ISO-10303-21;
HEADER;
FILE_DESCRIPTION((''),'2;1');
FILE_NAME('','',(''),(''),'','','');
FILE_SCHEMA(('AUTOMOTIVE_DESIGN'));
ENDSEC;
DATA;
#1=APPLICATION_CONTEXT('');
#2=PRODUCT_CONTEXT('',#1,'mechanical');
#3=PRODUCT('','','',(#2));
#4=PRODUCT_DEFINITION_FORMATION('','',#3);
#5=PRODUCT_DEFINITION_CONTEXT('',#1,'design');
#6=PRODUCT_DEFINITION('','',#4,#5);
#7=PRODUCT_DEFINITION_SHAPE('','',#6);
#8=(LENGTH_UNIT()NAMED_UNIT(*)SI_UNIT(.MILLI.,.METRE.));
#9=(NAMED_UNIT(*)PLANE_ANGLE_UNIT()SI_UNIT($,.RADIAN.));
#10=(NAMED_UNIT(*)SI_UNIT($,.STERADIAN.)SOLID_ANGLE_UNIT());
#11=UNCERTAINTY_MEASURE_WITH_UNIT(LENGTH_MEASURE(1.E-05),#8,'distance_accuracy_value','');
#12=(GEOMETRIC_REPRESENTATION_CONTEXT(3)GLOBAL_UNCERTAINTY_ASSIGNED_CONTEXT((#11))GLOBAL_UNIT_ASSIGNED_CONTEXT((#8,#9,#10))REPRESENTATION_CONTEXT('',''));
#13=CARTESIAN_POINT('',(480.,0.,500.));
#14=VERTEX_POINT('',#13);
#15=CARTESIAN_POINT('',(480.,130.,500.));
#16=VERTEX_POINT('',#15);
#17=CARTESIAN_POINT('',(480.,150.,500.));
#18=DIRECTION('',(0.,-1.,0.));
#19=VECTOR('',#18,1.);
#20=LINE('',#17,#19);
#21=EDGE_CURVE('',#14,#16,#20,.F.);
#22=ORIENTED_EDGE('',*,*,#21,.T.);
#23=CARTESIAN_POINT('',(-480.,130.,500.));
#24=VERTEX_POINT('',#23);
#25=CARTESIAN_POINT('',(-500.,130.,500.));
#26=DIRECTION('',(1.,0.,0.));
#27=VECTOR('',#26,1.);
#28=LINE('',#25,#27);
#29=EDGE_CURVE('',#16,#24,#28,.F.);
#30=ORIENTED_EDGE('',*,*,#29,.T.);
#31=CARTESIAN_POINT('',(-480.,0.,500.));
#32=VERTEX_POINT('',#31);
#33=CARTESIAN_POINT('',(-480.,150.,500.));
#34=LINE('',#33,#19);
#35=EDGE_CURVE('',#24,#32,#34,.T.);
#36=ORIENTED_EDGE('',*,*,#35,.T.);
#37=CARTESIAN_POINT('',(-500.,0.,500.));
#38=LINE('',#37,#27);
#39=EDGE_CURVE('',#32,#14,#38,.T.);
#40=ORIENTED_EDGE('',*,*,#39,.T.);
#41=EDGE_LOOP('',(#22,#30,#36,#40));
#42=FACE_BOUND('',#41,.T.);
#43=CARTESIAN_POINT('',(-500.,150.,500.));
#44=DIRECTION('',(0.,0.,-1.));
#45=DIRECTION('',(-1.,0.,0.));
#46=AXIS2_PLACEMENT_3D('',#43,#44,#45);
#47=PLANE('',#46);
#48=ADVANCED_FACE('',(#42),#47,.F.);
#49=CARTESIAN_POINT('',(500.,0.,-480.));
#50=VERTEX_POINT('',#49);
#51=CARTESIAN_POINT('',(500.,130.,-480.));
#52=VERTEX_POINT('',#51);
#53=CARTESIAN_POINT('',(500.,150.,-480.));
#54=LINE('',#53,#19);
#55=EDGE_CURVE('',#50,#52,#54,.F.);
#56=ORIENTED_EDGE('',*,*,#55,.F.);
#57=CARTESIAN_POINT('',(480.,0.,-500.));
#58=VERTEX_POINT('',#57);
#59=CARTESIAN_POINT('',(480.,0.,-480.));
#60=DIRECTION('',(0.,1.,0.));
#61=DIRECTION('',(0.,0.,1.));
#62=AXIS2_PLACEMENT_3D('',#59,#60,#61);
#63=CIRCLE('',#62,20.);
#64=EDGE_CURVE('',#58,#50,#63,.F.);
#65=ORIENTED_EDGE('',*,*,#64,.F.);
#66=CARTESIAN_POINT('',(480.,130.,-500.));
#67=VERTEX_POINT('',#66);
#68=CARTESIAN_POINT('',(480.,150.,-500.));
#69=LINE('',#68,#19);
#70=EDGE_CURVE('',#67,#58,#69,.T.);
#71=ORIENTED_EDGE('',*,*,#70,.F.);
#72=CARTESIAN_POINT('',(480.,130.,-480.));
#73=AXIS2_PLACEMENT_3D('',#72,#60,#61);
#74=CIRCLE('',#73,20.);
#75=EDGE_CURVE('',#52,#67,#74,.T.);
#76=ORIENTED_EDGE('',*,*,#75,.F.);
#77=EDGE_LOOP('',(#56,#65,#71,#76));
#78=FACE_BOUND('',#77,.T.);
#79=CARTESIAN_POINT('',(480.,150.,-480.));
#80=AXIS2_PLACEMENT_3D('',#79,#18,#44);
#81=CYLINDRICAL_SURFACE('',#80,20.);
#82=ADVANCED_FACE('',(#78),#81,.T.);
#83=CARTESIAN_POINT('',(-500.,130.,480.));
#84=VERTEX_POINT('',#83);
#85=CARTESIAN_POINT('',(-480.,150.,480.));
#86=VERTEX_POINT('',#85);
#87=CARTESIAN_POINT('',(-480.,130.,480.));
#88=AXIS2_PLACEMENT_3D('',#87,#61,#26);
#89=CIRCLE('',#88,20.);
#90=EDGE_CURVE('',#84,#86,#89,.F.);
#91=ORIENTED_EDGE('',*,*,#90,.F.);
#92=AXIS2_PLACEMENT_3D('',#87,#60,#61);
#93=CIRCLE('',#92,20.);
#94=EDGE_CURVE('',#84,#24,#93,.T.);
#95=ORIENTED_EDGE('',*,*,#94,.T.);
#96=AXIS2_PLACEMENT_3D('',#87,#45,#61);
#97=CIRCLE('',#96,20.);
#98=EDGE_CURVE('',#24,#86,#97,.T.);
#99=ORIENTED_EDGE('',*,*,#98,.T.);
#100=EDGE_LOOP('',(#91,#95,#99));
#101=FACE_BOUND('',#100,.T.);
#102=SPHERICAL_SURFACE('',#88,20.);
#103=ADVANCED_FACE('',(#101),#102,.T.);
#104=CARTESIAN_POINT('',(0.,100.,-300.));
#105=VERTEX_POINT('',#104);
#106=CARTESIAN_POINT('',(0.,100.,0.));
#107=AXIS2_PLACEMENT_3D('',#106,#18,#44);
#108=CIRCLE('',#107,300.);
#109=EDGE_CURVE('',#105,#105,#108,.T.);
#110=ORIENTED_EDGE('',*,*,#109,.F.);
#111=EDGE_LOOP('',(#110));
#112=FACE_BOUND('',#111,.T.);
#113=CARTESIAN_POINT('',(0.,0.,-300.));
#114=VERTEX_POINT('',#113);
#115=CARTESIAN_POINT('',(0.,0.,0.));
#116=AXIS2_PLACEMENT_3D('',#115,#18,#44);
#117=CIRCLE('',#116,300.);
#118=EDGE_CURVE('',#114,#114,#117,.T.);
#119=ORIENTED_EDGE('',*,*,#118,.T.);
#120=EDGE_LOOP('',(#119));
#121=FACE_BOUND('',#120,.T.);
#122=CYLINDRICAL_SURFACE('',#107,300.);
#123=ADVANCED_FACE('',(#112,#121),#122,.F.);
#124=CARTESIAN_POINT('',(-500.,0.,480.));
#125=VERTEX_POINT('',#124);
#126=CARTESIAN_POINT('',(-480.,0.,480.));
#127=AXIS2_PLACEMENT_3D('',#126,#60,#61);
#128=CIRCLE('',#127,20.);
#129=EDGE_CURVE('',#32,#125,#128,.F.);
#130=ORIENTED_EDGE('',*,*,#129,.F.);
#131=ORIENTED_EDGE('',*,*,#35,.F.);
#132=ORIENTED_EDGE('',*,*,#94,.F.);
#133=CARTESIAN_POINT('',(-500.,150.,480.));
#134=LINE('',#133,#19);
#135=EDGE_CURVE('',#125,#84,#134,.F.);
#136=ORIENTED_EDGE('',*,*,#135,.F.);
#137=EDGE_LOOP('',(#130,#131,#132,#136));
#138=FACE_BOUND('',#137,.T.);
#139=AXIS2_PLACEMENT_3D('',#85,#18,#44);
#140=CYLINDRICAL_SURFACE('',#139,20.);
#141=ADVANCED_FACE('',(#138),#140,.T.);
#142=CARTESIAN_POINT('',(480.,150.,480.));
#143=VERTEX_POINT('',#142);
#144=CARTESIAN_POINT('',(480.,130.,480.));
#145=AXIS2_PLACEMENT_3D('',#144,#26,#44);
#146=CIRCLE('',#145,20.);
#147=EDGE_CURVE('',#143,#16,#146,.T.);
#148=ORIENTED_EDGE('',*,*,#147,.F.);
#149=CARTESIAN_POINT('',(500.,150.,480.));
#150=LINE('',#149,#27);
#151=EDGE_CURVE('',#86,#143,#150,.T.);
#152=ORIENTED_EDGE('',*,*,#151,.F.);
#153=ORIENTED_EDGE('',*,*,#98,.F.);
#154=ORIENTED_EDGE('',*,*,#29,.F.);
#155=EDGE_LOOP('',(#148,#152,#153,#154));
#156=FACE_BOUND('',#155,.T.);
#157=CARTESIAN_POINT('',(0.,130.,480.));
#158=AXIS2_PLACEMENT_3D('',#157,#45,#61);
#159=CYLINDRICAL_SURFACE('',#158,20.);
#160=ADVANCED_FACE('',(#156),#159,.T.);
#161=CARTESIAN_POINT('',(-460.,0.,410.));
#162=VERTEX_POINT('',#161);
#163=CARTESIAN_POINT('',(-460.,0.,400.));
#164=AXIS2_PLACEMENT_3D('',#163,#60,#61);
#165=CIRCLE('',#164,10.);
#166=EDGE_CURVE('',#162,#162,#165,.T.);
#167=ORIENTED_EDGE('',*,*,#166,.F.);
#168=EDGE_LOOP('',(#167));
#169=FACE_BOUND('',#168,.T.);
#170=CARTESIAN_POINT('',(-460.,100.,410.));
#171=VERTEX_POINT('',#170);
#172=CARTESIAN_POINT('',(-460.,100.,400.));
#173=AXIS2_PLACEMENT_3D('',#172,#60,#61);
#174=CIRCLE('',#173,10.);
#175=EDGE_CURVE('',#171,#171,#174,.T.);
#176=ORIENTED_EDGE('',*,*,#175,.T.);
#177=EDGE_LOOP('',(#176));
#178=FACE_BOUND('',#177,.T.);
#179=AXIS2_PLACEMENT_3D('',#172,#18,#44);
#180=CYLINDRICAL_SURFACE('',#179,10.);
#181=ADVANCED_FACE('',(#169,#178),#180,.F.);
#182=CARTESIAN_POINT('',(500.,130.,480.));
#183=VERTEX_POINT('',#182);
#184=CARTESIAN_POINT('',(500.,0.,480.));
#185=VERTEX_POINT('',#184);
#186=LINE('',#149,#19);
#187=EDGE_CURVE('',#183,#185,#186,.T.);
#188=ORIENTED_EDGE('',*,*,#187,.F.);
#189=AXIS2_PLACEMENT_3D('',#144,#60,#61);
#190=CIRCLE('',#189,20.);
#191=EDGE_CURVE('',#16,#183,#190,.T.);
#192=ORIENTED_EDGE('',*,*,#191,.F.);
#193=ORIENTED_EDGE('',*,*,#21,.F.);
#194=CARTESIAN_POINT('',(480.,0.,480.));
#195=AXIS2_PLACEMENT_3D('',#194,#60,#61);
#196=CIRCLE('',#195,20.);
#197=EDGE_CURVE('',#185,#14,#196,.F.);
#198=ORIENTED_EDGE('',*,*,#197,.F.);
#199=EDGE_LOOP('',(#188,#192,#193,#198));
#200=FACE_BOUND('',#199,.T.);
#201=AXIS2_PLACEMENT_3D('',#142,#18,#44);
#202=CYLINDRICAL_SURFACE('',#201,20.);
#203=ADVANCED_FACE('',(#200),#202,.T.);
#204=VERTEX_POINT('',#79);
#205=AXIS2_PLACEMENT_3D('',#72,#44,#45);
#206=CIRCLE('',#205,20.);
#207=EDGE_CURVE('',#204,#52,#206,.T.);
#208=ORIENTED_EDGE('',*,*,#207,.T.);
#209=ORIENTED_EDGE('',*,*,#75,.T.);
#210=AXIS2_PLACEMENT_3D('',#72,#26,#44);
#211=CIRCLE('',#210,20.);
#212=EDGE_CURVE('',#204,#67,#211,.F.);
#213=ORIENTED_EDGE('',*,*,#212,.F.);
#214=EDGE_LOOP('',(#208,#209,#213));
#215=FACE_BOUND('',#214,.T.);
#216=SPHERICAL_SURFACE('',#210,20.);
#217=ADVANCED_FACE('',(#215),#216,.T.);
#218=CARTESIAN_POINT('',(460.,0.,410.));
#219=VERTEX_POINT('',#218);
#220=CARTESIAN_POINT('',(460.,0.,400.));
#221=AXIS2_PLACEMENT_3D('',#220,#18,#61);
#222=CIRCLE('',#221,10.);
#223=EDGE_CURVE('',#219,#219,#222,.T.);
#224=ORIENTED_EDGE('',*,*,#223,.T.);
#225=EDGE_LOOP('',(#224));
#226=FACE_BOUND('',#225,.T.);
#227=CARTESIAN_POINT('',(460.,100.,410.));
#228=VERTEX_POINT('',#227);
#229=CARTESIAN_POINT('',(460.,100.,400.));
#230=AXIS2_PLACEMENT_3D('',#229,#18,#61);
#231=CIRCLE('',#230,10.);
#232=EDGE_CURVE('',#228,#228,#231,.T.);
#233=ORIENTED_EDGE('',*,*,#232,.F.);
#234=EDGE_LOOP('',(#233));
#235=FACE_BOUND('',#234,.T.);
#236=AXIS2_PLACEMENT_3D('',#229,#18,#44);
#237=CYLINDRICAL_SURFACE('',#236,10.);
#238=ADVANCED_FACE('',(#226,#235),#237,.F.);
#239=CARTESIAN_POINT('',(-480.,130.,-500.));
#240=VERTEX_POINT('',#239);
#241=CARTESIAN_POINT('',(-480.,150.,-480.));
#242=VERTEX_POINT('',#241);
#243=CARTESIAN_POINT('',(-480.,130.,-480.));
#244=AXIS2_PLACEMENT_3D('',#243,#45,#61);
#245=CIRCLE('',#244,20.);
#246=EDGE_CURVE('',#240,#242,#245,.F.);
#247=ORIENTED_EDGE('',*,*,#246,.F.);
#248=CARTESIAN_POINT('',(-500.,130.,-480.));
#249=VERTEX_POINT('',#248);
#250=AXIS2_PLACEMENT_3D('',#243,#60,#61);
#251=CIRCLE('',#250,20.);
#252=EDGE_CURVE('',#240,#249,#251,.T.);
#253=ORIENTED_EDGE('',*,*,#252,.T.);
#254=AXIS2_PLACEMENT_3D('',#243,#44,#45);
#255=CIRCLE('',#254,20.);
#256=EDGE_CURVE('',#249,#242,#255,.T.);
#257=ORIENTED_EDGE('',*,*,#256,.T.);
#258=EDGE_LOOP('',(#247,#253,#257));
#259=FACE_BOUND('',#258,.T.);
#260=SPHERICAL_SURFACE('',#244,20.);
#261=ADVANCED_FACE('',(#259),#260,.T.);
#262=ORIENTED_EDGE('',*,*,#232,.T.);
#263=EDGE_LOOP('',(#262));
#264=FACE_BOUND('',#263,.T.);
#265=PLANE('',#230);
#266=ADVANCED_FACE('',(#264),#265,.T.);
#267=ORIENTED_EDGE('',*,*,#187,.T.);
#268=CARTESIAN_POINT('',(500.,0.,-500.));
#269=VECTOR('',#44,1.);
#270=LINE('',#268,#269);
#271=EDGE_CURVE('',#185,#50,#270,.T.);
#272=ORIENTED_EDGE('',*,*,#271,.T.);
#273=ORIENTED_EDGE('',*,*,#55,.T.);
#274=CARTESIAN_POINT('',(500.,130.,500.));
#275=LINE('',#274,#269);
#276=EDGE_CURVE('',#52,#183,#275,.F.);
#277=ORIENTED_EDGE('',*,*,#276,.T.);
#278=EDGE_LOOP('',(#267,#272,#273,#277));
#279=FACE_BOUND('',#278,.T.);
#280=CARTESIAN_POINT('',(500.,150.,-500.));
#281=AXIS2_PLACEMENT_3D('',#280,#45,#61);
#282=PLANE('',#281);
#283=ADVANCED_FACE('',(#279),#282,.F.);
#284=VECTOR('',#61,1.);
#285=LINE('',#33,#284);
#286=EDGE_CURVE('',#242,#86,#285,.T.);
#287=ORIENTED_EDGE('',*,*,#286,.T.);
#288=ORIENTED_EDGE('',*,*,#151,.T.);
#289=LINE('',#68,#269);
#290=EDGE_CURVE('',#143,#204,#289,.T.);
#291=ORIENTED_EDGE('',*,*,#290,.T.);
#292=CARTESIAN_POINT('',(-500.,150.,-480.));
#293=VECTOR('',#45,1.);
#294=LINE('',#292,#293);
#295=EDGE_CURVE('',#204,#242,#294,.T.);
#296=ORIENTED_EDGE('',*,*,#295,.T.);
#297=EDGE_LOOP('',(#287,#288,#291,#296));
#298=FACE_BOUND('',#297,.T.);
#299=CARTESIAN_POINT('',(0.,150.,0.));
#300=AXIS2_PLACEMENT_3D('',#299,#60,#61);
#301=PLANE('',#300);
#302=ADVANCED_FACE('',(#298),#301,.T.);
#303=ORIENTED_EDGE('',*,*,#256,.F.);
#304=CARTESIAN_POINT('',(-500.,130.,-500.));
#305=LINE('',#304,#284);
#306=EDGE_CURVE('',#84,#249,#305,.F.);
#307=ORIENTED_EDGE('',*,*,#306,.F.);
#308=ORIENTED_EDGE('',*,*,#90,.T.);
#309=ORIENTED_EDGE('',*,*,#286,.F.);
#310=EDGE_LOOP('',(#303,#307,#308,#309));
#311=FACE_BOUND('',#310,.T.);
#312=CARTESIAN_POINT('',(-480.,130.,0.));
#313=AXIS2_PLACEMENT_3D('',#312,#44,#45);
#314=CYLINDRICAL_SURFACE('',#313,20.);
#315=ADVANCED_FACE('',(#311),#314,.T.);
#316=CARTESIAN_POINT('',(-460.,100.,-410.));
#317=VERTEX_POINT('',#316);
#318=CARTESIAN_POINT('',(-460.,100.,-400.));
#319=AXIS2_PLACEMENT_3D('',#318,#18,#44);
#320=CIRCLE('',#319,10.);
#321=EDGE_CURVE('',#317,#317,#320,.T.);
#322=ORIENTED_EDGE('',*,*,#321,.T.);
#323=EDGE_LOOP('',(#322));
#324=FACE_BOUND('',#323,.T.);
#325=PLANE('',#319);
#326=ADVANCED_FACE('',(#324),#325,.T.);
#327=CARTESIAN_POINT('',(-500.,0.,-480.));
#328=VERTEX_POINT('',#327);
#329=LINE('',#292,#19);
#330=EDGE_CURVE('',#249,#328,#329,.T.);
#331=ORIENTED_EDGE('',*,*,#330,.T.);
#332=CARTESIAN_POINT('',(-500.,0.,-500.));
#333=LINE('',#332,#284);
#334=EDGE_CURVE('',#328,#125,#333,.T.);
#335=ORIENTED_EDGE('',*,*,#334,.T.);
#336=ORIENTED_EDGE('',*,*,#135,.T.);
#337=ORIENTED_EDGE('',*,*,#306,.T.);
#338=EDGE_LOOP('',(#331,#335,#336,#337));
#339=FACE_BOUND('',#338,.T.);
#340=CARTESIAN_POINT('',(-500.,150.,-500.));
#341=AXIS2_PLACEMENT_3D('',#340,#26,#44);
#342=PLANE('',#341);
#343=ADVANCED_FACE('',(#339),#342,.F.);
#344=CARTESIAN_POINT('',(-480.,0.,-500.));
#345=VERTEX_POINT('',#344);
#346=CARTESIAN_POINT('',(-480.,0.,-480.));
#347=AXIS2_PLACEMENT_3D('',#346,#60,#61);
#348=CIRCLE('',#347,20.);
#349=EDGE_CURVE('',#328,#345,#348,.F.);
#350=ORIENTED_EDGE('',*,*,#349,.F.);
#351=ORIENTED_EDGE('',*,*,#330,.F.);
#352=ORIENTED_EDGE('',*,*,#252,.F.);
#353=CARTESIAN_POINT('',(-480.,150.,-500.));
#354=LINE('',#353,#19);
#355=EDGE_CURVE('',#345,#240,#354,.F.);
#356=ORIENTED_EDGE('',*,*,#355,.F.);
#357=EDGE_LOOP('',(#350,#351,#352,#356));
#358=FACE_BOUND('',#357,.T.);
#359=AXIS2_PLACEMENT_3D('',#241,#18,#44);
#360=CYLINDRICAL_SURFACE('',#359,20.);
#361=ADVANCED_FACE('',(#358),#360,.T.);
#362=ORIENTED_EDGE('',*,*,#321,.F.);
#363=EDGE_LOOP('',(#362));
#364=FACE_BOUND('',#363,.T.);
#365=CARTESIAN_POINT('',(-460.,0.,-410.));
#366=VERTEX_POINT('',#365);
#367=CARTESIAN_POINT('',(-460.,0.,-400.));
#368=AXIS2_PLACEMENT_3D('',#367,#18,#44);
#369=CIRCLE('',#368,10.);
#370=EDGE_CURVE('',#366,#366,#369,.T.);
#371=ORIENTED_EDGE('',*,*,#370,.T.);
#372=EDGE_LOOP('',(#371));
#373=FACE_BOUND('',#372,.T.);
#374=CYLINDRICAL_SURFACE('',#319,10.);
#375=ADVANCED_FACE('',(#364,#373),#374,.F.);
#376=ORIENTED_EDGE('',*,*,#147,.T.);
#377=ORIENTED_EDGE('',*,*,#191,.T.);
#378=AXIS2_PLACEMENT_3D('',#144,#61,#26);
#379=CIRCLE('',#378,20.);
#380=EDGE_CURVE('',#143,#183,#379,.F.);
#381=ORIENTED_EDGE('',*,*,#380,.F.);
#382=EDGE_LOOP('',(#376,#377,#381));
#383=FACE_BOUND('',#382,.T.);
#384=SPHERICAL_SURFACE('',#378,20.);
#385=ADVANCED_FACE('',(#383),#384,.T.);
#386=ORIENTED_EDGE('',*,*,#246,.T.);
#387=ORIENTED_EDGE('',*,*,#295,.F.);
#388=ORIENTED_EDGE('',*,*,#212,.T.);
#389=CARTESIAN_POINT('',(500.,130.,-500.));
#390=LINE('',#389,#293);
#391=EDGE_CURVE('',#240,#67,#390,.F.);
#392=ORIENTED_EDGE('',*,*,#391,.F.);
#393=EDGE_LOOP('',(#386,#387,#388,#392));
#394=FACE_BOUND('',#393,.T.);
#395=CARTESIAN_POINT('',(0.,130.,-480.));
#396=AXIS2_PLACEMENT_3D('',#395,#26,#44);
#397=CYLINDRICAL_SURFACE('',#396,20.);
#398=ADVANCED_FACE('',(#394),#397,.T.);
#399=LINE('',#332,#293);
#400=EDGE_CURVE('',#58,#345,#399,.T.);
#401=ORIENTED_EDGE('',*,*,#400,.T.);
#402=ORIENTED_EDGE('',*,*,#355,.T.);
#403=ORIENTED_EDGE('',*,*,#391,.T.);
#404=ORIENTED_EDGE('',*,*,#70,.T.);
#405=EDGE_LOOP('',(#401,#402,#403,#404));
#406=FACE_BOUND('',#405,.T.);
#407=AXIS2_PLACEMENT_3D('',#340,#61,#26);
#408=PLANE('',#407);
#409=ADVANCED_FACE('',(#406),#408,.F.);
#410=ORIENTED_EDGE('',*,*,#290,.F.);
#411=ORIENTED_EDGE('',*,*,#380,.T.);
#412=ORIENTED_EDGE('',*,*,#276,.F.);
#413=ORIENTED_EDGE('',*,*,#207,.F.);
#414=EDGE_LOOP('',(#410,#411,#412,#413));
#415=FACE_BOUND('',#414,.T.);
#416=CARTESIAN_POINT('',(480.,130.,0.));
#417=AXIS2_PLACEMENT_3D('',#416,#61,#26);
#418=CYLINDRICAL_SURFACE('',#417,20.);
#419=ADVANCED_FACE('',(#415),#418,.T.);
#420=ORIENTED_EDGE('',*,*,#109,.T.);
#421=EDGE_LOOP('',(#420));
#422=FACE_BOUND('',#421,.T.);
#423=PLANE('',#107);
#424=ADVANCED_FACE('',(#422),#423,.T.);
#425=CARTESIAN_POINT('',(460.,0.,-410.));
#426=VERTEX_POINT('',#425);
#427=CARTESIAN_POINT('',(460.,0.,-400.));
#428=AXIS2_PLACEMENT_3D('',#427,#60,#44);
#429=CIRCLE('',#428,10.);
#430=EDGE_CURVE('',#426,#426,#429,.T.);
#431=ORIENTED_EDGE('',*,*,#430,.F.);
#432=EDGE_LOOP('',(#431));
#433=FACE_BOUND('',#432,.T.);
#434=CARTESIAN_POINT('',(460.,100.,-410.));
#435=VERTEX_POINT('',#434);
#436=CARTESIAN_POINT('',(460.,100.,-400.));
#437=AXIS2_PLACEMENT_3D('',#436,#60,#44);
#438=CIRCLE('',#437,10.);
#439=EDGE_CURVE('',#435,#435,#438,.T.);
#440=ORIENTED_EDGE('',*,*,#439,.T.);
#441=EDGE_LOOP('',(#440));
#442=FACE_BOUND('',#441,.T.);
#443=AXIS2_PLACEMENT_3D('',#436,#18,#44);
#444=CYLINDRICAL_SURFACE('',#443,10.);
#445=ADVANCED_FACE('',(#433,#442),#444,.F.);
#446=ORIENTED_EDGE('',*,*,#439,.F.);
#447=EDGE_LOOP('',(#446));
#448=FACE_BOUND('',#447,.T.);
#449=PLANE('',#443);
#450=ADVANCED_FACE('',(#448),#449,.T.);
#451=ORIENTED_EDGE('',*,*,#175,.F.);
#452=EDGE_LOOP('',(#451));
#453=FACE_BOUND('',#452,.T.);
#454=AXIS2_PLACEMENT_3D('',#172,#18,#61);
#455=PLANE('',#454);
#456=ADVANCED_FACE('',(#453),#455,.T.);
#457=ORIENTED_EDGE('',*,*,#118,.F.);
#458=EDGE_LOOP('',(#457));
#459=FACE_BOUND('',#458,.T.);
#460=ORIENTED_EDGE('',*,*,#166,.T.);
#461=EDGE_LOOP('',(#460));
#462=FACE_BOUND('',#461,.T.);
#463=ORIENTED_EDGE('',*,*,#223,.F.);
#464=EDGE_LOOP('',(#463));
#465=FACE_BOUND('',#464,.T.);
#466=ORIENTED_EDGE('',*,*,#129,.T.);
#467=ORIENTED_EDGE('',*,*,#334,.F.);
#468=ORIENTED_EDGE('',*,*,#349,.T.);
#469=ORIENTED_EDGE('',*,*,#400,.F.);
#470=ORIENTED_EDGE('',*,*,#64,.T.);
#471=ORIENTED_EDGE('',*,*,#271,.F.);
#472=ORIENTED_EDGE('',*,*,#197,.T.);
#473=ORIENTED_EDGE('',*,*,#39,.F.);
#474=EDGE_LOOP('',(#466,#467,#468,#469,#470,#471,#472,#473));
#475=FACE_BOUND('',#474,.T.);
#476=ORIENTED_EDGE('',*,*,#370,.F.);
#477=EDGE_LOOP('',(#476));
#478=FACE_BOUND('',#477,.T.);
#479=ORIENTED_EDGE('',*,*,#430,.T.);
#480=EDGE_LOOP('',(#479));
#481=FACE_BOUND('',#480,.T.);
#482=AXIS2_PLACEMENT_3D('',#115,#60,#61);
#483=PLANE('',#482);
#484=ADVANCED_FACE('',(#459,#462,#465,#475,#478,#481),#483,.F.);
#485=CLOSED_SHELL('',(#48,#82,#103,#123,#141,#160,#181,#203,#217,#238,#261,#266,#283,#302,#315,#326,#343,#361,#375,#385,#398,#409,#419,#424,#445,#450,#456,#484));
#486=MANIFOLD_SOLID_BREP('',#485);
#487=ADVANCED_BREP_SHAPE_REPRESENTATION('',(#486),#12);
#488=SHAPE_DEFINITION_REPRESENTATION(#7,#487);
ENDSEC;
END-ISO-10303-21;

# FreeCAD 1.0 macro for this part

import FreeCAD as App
import Part
import Sketcher
Q = App.Units.Quantity


def edges_at(feature, points):
    """Names of the edges that pass closest to the given points."""
    edges = feature.Shape.Edges
    near = lambda p: min(range(len(edges)), key=lambda i: edges[i].distToShape(Part.Vertex(*p))[0])
    return sorted({f"Edge{near(p) + 1}" for p in points})


def add_polygon(sketch, points):
    """Adds a closed chain of lines whose ends are joined by coincident constraints."""
    first, n = sketch.GeometryCount, len(points)
    for a, b in zip(points, points[1:] + points[:1]):
        sketch.addGeometry(Part.LineSegment(App.Vector(*a, 0), App.Vector(*b, 0)), False)
    for i in range(n):
        sketch.addConstraint(Sketcher.Constraint("Coincident", first + i, 2, first + (i + 1) % n, 1))

doc = App.newDocument("Part")
body = doc.addObject("PartDesign::Body", "Body")

# Sketch on XZ plane
sketch1 = body.newObject("Sketcher::SketchObject", "Sketch")
sketch1.AttachmentSupport = (doc.getObject("XZ_Plane"), [""])
sketch1.MapMode = "FlatFace"
add_polygon(sketch1, [(-500, -500), (-500, 500), (500, 500), (500, -500)])  # lines 0-3
sketch1.addConstraint([
    Sketcher.Constraint("Vertical", 0),
    Sketcher.Constraint("Horizontal", 1),
    Sketcher.Constraint("Vertical", 2),
    Sketcher.Constraint("Horizontal", 3),
    Sketcher.Constraint("Symmetric", 0, 2, 2, 2, -1, 1),
    Sketcher.Constraint("Equal", 3, 0),
    Sketcher.Constraint("DistanceX", 1, 1, 1, 2, Q("1000 mm")),
])
pad1 = body.newObject("PartDesign::Pad", "Pad")
pad1.Profile = sketch1
pad1.Length = 150
pad1.Reversed = True

# Sketch on XZ plane
sketch2 = body.newObject("Sketcher::SketchObject", "Sketch001")
sketch2.AttachmentSupport = (doc.getObject("XZ_Plane"), [""])
sketch2.MapMode = "FlatFace"
sketch2.addGeometry(Part.Circle(App.Vector(0, 0, 0), App.Vector(0, 0, 1), 300), False)
sketch2.addConstraint([
    Sketcher.Constraint("Coincident", 0, 3, -1, 1),
    Sketcher.Constraint("Diameter", 0, Q("600 mm")),
])
pocket1 = body.newObject("PartDesign::Pocket", "Pocket")
pocket1.Profile = sketch2
pocket1.Length = 100
doc.recompute()

fillet = body.newObject("PartDesign::Fillet", "Fillet")
fillet.Base = (pocket1, edges_at(pocket1, [
    (500, 150, 0),
    (0, 150, -500),
    (-500, 150, 0),
    (-500, 75, -500),
    (500, 75, -500),
    (500, 75, 500),
    (-500, 75, 500),
    (0, 150, 500),
]))
fillet.Radius = 20

# Sketch on XZ plane
sketch3 = body.newObject("Sketcher::SketchObject", "Sketch002")
sketch3.AttachmentSupport = (doc.getObject("XZ_Plane"), [""])
sketch3.MapMode = "FlatFace"
sketch3.addGeometry(Part.Circle(App.Vector(-460, -400, 0), App.Vector(0, 0, 1), 10), False)
sketch3.addConstraint([
    Sketcher.Constraint("Diameter", 0, Q("20 mm")),
    Sketcher.Constraint("DistanceX", 0, 3, -1, 1, Q("460 mm")),
    Sketcher.Constraint("DistanceY", 0, 3, -1, 1, Q("400 mm")),
])
pocket2 = body.newObject("PartDesign::Pocket", "Pocket001")
pocket2.Profile = sketch3
pocket2.Length = 100
doc.recompute()

mirrored = body.newObject("PartDesign::Mirrored", "Mirrored")
mirrored.Originals = [pocket2]
mirrored.MirrorPlane = (doc.getObject("YZ_Plane"), [""])
body.Tip = mirrored
doc.recompute()

mirrored2 = body.newObject("PartDesign::Mirrored", "Mirrored001")
mirrored2.Originals = [pocket2]
mirrored2.MirrorPlane = (doc.getObject("XY_Plane"), [""])
body.Tip = mirrored2

# Sketch on XZ plane
sketch4 = body.newObject("Sketcher::SketchObject", "Sketch003")
sketch4.AttachmentSupport = (doc.getObject("XZ_Plane"), [""])
sketch4.MapMode = "FlatFace"
sketch4.addGeometry(Part.Circle(App.Vector(460, 400, 0), App.Vector(0, 0, 1), 10), False)
sketch4.addConstraint([
    Sketcher.Constraint("Diameter", 0, Q("20 mm")),
    Sketcher.Constraint("DistanceX", -1, 1, 0, 3, Q("460 mm")),
    Sketcher.Constraint("DistanceY", -1, 1, 0, 3, Q("400 mm")),
])
pocket3 = body.newObject("PartDesign::Pocket", "Pocket002")
pocket3.Profile = sketch4
pocket3.Length = 100

doc.recompute()
